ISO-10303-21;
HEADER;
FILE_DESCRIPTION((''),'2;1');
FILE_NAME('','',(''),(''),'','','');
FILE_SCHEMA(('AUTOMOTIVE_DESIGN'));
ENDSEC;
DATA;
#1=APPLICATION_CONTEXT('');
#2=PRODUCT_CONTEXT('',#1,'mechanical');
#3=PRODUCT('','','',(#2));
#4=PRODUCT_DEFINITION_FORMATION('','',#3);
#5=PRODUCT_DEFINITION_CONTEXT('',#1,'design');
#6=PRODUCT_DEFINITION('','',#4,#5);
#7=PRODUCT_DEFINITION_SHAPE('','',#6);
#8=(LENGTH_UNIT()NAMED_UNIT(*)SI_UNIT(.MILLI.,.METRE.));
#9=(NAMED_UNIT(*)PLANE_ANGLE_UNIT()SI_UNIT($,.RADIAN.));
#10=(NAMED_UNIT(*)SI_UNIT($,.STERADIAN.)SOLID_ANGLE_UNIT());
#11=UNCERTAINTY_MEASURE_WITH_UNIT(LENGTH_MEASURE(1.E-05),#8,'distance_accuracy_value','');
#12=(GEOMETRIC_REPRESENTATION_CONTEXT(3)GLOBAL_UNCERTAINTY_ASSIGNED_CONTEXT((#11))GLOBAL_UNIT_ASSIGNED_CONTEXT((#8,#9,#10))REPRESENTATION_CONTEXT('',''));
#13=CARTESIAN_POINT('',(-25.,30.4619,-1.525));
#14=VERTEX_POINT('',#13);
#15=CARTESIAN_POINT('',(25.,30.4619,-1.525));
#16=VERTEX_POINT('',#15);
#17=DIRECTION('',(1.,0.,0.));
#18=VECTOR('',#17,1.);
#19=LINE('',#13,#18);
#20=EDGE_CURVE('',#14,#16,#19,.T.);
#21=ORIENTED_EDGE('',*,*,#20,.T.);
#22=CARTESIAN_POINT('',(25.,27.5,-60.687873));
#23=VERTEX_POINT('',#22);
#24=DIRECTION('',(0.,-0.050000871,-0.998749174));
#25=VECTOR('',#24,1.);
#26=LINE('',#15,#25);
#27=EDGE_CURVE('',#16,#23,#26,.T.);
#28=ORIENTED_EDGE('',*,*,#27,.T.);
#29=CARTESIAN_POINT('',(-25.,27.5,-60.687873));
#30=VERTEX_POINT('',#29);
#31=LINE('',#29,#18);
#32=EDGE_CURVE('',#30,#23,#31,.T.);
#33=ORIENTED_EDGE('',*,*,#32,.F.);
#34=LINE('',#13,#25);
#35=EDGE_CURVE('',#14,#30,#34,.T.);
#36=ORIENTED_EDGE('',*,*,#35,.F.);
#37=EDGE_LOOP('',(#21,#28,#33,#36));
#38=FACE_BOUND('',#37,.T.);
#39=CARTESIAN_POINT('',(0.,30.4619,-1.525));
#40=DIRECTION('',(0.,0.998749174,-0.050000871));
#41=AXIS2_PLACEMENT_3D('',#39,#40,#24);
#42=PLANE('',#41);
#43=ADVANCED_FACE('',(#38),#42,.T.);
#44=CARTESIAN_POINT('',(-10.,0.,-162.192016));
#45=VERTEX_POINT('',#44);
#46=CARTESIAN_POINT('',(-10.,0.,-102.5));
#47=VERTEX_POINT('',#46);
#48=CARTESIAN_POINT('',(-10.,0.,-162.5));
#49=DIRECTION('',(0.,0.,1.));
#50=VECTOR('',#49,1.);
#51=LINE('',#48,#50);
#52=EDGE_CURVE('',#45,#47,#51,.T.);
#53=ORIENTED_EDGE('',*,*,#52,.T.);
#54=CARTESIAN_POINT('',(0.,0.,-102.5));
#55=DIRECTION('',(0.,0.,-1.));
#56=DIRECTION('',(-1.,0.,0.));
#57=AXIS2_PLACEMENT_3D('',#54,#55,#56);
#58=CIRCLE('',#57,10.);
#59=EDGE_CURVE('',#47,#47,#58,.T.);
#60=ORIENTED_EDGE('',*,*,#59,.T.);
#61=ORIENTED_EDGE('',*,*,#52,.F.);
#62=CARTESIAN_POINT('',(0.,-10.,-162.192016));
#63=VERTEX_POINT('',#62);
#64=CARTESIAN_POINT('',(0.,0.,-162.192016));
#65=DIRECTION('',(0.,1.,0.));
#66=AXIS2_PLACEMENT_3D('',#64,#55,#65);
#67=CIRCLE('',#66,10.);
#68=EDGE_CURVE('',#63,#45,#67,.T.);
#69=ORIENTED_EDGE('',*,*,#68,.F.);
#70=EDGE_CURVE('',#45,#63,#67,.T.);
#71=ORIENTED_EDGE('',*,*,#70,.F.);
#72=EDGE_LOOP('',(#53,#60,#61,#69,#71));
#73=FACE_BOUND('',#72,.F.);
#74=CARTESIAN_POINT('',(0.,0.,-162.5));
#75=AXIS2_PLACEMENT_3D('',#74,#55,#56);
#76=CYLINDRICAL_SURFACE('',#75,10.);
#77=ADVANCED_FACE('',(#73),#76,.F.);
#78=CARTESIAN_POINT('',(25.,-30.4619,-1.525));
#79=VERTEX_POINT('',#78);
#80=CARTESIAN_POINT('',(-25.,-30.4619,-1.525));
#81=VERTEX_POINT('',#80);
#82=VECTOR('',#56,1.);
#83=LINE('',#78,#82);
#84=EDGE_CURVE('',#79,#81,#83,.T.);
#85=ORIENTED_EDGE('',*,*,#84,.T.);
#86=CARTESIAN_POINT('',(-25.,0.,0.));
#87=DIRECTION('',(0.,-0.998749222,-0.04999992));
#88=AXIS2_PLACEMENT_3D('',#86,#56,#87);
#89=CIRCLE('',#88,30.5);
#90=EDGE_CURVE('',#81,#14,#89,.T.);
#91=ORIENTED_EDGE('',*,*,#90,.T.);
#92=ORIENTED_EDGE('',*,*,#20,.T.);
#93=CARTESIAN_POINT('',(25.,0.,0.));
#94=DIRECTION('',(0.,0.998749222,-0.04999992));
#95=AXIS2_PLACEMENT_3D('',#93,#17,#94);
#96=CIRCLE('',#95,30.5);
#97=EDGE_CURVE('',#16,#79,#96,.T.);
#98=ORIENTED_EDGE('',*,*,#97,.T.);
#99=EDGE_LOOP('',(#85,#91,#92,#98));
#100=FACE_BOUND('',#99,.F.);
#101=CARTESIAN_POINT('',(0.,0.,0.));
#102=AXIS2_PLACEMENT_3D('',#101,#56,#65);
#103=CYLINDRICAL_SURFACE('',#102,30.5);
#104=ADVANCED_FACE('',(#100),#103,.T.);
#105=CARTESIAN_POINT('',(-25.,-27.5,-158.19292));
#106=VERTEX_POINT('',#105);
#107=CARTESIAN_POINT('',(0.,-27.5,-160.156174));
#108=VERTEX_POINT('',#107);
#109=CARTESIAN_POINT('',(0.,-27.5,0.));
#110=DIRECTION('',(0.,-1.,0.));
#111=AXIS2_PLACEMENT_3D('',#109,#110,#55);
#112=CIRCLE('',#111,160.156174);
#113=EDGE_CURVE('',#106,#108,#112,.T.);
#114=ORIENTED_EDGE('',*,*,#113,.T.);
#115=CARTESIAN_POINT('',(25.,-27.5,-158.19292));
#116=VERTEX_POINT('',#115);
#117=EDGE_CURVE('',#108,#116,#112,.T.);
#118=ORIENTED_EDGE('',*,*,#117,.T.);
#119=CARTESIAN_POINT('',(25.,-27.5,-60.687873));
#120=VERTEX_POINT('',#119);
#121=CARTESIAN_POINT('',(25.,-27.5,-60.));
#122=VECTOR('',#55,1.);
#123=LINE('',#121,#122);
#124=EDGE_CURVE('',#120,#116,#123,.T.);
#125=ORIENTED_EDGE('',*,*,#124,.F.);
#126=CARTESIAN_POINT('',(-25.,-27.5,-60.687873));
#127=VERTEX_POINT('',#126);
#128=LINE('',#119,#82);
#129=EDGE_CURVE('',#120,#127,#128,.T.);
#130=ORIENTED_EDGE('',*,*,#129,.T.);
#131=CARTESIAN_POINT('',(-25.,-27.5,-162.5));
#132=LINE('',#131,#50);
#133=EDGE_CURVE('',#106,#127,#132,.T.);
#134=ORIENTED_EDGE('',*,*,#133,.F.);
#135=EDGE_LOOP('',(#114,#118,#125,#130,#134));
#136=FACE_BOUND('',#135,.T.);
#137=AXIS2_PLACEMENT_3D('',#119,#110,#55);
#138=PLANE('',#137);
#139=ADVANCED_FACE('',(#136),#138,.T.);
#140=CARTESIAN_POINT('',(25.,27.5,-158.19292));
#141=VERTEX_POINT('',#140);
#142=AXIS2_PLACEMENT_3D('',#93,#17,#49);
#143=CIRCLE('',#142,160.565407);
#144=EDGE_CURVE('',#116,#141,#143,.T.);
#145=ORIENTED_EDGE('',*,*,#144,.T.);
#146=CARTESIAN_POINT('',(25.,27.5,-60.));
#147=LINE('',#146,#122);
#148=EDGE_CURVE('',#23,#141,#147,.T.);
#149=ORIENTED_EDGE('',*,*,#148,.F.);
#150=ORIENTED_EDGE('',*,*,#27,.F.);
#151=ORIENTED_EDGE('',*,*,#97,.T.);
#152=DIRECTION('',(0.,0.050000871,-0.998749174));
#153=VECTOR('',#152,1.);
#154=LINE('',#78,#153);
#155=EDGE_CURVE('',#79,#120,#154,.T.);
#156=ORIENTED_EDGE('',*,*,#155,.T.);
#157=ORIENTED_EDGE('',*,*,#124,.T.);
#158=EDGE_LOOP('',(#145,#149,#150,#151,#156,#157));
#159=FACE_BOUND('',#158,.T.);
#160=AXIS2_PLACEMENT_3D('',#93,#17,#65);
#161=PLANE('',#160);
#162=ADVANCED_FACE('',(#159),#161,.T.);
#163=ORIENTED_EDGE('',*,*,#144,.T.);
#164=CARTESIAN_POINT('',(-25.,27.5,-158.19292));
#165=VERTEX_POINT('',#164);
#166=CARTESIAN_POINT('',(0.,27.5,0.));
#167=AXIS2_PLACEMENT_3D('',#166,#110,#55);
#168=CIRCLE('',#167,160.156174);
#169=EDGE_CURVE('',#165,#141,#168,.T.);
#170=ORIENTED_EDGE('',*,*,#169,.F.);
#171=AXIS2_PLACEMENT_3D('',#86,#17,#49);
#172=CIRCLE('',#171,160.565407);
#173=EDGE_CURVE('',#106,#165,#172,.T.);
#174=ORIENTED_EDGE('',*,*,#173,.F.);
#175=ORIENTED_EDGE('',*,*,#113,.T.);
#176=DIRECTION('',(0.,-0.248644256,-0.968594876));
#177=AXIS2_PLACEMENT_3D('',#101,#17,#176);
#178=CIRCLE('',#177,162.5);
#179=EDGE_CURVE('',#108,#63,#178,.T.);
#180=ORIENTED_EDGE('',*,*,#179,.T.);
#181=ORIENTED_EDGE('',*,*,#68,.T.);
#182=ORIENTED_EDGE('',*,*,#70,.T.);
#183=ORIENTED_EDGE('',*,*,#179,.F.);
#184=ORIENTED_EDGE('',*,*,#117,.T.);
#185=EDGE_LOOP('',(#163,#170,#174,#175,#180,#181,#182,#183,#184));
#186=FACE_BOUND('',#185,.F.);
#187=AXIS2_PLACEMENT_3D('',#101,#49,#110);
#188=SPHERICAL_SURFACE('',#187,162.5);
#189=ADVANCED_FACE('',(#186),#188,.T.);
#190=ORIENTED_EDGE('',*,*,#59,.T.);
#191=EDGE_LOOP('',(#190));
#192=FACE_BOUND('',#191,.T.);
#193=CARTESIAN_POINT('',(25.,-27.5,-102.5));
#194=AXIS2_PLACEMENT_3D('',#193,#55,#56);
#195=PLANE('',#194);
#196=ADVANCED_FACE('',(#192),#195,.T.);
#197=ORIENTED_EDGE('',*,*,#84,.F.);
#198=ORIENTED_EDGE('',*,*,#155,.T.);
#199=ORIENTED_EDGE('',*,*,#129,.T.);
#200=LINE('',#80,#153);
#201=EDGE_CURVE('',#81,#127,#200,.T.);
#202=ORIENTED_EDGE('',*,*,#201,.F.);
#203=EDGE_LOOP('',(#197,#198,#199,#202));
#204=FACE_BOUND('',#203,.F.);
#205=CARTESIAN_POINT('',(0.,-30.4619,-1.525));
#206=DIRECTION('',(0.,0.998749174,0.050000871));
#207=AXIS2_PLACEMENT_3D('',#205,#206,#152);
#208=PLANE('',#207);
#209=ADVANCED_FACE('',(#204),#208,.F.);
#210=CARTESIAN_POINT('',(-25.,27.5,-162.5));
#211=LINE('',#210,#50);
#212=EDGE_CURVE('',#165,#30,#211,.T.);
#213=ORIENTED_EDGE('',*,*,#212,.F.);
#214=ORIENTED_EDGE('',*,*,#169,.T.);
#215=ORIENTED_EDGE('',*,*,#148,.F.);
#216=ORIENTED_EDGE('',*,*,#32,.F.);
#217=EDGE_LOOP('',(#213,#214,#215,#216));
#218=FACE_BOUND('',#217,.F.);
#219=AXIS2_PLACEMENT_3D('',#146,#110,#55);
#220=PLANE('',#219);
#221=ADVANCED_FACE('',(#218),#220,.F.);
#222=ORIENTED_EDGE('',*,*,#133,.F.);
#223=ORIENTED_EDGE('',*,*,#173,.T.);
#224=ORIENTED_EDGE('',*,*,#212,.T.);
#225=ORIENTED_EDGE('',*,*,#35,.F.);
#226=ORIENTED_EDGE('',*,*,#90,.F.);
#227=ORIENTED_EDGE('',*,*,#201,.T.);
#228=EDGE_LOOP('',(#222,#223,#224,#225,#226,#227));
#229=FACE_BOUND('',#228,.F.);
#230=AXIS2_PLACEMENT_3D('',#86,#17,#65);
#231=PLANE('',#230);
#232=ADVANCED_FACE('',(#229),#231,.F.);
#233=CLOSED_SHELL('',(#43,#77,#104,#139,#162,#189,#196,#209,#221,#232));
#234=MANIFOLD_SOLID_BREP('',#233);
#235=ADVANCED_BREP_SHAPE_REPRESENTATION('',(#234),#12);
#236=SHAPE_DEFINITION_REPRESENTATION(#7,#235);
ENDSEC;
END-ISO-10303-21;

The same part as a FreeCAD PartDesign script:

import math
import FreeCAD as App
import Part
import Sketcher
from FreeCAD import Vector

doc = App.newDocument("Part")
body = doc.addObject("PartDesign::Body", "Body")

# Sketch on YZ plane
sketch1 = body.newObject("Sketcher::SketchObject", "Sketch")
sketch1.AttachmentSupport = (doc.getObject("YZ_Plane"), [""])
sketch1.MapMode = "FlatFace"
sketch1.addGeometry(Part.Circle(Vector(0, -60, 0), Vector(0, 0, 1), 28), False)
sketch1.addConstraint(Sketcher.Constraint("PointOnObject", 0, 3, -2))
sketch1.addConstraint(Sketcher.Constraint("Diameter", 0, 55.0))
sketch1.addConstraint(Sketcher.Constraint("DistanceY", 0, 3, -1, 1, 60.0))
pad1 = body.newObject("PartDesign::Pad", "Pad")
pad1.Profile = sketch1
pad1.Length = 50
pad1.Midplane = True

# Sketch on YZ plane
sketch2 = body.newObject("Sketcher::SketchObject", "Sketch001")
sketch2.AttachmentSupport = (doc.getObject("YZ_Plane"), [""])
sketch2.MapMode = "FlatFace"
sketch2.AttachmentOffset = App.Placement(Vector(0, 0, 25), App.Rotation())
sketch2.addGeometry(Part.ArcOfCircle(Part.Circle(Vector(0, -60, 0), Vector(0, 0, 1), 28), math.radians(180), math.radians(360)), False)
sketch2.addGeometry(Part.LineSegment(Vector(-28, -60, 0), Vector(-28, -162, 0)), False)
sketch2.addGeometry(Part.LineSegment(Vector(-28, -162, 0), Vector(28, -162, 0)), False)
sketch2.addGeometry(Part.LineSegment(Vector(28, -162, 0), Vector(28, -60, 0)), False)
sketch2.addConstraint(Sketcher.Constraint("Tangent", 0, 1, 1, 1))
sketch2.addConstraint(Sketcher.Constraint("Coincident", 1, 2, 2, 1))
sketch2.addConstraint(Sketcher.Constraint("Coincident", 2, 2, 3, 1))
sketch2.addConstraint(Sketcher.Constraint("Tangent", 3, 2, 0, 2))
sketch2.addConstraint(Sketcher.Constraint("Vertical", 1))
sketch2.addConstraint(Sketcher.Constraint("Horizontal", 2))
sketch2.addConstraint(Sketcher.Constraint("Vertical", 3))
sketch2.addConstraint(Sketcher.Constraint("PointOnObject", 0, 3, -2))
sketch2.addConstraint(Sketcher.Constraint("Radius", 0, 27.5))
sketch2.addConstraint(Sketcher.Constraint("DistanceY", 0, 3, -1, 1, 60.0))
sketch2.addConstraint(Sketcher.Constraint("DistanceY", 1, 2, -1, 1, 162.5))
pad2 = body.newObject("PartDesign::Pad", "Pad001")
pad2.Profile = sketch2
pad2.Length = 50
pad2.Reversed = True

# Sketch on XY plane
sketch3 = body.newObject("Sketcher::SketchObject", "Sketch002")
sketch3.AttachmentSupport = (doc.getObject("XY_Plane"), [""])
sketch3.MapMode = "FlatFace"
sketch3.AttachmentOffset = App.Placement(Vector(0, 0, -162.5), App.Rotation())
sketch3.addGeometry(Part.Circle(Vector(0, 0, 0), Vector(0, 0, 1), 10), False)
sketch3.addConstraint(Sketcher.Constraint("Coincident", 0, 3, -1, 1))
sketch3.addConstraint(Sketcher.Constraint("Diameter", 0, 20.0))
pocket1 = body.newObject("PartDesign::Pocket", "Pocket")
pocket1.Profile = sketch3
pocket1.Length = 60
pocket1.Reversed = True

# Sketch on YZ plane
sketch4 = body.newObject("Sketcher::SketchObject", "Sketch003")
sketch4.AttachmentSupport = (doc.getObject("YZ_Plane"), [""])
sketch4.MapMode = "FlatFace"
sketch4.addGeometry(Part.LineSegment(Vector(-40, -162, 0), Vector(-40, -157, 0)), False)
sketch4.addGeometry(Part.ArcOfCircle(Part.Circle(Vector(0, 0, 0), Vector(0, 0, 1), 162), math.radians(-104.4), math.radians(-90)), False)
sketch4.addGeometry(Part.LineSegment(Vector(0, -162, 0), Vector(-40, -162, 0)), False)
sketch4.addConstraint(Sketcher.Constraint("Coincident", 0, 2, 1, 1))
sketch4.addConstraint(Sketcher.Constraint("Tangent", 1, 2, 2, 1))
sketch4.addConstraint(Sketcher.Constraint("Coincident", 2, 2, 0, 1))
sketch4.addConstraint(Sketcher.Constraint("Vertical", 0))
sketch4.addConstraint(Sketcher.Constraint("Horizontal", 2))
sketch4.addConstraint(Sketcher.Constraint("Coincident", 1, 3, -1, 1))
sketch4.addConstraint(Sketcher.Constraint("Radius", 1, 162.5))
sketch4.addConstraint(Sketcher.Constraint("DistanceX", 2, 2, 2, 1, 40.4047))
groove = body.newObject("PartDesign::Groove", "Groove")
groove.Profile = sketch4
groove.ReferenceAxis = (sketch4, ["V_Axis"])
groove.Angle = 360

# Sketch on YZ plane
sketch5 = body.newObject("Sketcher::SketchObject", "Sketch004")
sketch5.AttachmentSupport = (doc.getObject("YZ_Plane"), [""])
sketch5.MapMode = "FlatFace"
sketch5.addGeometry(Part.ArcOfCircle(Part.Circle(Vector(0, -60, 0), Vector(0, 0, 1), 27.5), math.radians(0), math.radians(180)), False)
sketch5.addGeometry(Part.LineSegment(Vector(27.5, -60, 0), Vector(27.5, -60.7, 0)), False)
sketch5.addGeometry(Part.LineSegment(Vector(27.5, -60.7, 0), Vector(30.5, -1.5, 0)), False)
sketch5.addGeometry(Part.ArcOfCircle(Part.Circle(Vector(0, 0, 0), Vector(0, 0, 1), 30.5), math.radians(-3), math.radians(183)), False)
sketch5.addGeometry(Part.LineSegment(Vector(-30.5, -1.5, 0), Vector(-27.5, -60.7, 0)), False)
sketch5.addGeometry(Part.LineSegment(Vector(-27.5, -60.7, 0), Vector(-27.5, -60, 0)), False)
sketch5.addConstraint(Sketcher.Constraint("Tangent", 0, 1, 1, 1))
sketch5.addConstraint(Sketcher.Constraint("Coincident", 1, 2, 2, 1))
sketch5.addConstraint(Sketcher.Constraint("Tangent", 2, 2, 3, 1))
sketch5.addConstraint(Sketcher.Constraint("Tangent", 3, 2, 4, 1))
sketch5.addConstraint(Sketcher.Constraint("Coincident", 4, 2, 5, 1))
sketch5.addConstraint(Sketcher.Constraint("Tangent", 5, 2, 0, 2))
sketch5.addConstraint(Sketcher.Constraint("Vertical", 1))
sketch5.addConstraint(Sketcher.Constraint("Vertical", 5))
sketch5.addConstraint(Sketcher.Constraint("Coincident", 3, 3, -1, 1))
sketch5.addConstraint(Sketcher.Constraint("Symmetric", 1, 2, 4, 2, -2))
sketch5.addConstraint(Sketcher.Constraint("Radius", 0, 27.5))
sketch5.addConstraint(Sketcher.Constraint("Radius", 3, 30.5))
sketch5.addConstraint(Sketcher.Constraint("DistanceY", 0, 3, -1, 1, 60.0))
sketch5.addConstraint(Sketcher.Constraint("Distance", 2, 59.237))
pad3 = body.newObject("PartDesign::Pad", "Pad002")
pad3.Profile = sketch5
pad3.Length = 50
pad3.Midplane = True

doc.recompute()
